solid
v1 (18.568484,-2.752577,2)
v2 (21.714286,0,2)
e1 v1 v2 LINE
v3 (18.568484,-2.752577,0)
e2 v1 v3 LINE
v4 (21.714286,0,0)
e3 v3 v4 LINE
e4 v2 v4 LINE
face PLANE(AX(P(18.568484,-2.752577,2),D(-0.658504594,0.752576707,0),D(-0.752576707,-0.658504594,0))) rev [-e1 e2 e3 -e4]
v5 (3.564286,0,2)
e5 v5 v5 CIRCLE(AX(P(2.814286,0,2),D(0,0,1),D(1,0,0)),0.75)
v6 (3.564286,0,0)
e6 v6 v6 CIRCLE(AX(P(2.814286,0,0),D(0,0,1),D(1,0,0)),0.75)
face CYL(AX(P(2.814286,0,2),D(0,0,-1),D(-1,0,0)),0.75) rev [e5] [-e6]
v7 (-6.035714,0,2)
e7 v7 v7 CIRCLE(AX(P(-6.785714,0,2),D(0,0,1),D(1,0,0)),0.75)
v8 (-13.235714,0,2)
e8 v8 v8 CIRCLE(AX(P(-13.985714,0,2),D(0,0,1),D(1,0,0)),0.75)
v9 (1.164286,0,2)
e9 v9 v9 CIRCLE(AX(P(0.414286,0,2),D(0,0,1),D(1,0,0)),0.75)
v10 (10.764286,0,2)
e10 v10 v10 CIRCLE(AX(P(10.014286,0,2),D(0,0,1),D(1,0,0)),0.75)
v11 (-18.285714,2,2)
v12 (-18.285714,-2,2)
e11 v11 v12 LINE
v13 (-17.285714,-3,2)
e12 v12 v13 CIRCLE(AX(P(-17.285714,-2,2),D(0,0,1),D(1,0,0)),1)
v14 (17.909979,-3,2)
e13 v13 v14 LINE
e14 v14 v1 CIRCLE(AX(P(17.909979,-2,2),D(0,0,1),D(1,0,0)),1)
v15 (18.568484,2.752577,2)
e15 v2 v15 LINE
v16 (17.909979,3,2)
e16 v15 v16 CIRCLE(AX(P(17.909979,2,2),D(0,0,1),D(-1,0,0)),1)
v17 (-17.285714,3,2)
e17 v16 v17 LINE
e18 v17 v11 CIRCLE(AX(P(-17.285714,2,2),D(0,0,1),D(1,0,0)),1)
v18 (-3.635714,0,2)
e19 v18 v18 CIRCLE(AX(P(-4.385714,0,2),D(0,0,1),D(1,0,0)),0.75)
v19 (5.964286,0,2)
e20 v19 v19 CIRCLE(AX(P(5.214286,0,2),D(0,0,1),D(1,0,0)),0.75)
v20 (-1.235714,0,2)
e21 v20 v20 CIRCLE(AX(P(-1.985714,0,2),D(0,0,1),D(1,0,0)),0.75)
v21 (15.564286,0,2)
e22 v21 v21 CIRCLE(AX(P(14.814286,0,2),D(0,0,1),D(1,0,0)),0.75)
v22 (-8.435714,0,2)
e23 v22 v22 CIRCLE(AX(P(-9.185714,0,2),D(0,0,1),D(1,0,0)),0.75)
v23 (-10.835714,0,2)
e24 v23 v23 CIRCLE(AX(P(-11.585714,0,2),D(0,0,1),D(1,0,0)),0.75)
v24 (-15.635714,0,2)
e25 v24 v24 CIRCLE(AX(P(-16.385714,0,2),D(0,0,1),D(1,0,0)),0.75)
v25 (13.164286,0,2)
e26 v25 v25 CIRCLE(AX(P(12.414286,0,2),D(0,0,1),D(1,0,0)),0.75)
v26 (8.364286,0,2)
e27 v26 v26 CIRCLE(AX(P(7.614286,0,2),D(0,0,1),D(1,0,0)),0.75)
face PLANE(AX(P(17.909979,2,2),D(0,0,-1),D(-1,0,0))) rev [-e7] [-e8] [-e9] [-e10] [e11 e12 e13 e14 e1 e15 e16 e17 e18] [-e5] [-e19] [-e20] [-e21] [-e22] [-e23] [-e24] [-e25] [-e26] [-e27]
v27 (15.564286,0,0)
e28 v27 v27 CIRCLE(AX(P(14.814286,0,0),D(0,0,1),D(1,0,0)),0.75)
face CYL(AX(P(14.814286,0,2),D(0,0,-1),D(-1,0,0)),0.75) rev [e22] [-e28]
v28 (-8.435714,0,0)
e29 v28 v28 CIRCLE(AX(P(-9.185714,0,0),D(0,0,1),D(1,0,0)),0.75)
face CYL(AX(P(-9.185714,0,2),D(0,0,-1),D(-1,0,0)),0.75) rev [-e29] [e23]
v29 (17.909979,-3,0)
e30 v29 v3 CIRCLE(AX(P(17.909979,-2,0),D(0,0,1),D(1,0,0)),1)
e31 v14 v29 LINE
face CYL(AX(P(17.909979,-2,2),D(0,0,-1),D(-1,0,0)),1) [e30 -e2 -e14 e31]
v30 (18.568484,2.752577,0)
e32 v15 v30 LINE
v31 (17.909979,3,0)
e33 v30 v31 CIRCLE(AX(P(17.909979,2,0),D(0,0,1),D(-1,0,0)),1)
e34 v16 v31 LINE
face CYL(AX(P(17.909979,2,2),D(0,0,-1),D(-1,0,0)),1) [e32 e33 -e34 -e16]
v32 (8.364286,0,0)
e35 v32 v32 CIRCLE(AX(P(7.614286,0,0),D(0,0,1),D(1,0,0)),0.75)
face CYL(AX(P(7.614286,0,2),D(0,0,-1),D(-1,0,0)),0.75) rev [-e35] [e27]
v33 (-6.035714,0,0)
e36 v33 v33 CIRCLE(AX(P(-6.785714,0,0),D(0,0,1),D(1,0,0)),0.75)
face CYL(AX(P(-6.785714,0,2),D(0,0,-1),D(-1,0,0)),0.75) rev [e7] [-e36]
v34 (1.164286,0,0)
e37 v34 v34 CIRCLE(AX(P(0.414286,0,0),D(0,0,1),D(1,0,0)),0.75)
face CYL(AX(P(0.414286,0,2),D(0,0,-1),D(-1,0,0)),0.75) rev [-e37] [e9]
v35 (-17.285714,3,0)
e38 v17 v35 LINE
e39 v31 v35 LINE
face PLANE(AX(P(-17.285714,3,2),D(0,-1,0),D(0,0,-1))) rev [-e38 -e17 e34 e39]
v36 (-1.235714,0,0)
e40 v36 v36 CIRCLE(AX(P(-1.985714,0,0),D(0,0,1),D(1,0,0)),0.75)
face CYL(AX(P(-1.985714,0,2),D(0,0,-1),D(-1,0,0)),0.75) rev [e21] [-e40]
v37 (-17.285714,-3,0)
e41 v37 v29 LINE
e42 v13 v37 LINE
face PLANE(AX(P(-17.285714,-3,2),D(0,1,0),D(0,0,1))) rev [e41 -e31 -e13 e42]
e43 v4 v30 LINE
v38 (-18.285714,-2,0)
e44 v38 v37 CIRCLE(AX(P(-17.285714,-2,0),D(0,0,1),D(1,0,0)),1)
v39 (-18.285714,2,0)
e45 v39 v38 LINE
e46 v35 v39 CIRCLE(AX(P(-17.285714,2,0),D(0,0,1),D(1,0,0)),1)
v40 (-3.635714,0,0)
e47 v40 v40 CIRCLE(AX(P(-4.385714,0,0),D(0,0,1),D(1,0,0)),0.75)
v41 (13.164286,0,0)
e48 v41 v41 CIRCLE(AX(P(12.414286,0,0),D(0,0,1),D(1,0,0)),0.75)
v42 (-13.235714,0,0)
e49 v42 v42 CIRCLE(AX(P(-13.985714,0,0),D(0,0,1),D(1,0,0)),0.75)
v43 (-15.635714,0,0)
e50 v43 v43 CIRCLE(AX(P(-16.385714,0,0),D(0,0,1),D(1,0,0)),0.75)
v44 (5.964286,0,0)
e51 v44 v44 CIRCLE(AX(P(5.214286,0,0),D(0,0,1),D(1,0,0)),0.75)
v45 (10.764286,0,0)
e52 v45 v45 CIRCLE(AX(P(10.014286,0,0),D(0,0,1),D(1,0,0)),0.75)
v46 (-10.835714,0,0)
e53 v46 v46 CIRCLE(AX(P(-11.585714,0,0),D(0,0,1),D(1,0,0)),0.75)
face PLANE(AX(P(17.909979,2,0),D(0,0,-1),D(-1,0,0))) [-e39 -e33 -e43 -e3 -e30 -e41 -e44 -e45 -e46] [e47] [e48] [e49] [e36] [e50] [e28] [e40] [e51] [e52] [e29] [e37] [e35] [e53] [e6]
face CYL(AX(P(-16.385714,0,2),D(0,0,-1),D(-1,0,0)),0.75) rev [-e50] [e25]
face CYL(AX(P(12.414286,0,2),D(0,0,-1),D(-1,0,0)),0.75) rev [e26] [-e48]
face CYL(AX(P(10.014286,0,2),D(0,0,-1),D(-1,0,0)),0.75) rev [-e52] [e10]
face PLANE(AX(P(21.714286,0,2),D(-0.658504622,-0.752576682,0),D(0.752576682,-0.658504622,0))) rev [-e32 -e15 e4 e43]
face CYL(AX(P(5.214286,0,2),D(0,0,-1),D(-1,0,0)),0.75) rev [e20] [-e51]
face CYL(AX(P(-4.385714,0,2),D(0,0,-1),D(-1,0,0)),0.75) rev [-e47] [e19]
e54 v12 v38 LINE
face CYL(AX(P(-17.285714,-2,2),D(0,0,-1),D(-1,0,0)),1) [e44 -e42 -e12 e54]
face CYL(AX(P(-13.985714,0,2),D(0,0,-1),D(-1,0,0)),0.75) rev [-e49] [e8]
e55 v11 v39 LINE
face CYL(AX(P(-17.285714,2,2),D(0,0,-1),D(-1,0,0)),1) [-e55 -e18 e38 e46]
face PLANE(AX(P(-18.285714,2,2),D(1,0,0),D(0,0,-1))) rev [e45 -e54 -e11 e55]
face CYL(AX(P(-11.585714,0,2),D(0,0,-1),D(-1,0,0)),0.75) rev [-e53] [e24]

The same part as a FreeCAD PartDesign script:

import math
import FreeCAD as App
import Part
import Sketcher
from FreeCAD import Vector

doc = App.newDocument("Part")
body = doc.addObject("PartDesign::Body", "Body")

sketch1 = body.newObject("Sketcher::SketchObject", "Sketch")
sketch1.AttachmentSupport = (doc.getObject("XY_Plane"), [""])
sketch1.MapMode = "FlatFace"
sketch1.addGeometry(Part.LineSegment(Vector(18.568484, -2.752577, 0), Vector(21.714286, 0, 0)), False)
sketch1.addGeometry(Part.LineSegment(Vector(21.714286, 0, 0), Vector(18.568484, 2.752577, 0)), False)
sketch1.addGeometry(Part.ArcOfCircle(Part.Circle(Vector(17.909979, 2, 0), Vector(0, 0, 1), 1), math.radians(48.814074), math.radians(90)), False)
sketch1.addGeometry(Part.LineSegment(Vector(17.909979, 3, 0), Vector(-17.285714, 3, 0)), False)
sketch1.addGeometry(Part.ArcOfCircle(Part.Circle(Vector(-17.285714, 2, 0), Vector(0, 0, 1), 1), math.radians(90), math.radians(180)), False)
sketch1.addGeometry(Part.LineSegment(Vector(-18.285714, 2, 0), Vector(-18.285714, -2, 0)), False)
sketch1.addGeometry(Part.ArcOfCircle(Part.Circle(Vector(-17.285714, -2, 0), Vector(0, 0, 1), 1), math.radians(-180), math.radians(-90)), False)
sketch1.addGeometry(Part.LineSegment(Vector(-17.285714, -3, 0), Vector(17.909979, -3, 0)), False)
sketch1.addGeometry(Part.ArcOfCircle(Part.Circle(Vector(17.909979, -2, 0), Vector(0, 0, 1), 1), math.radians(-90), math.radians(-48.814076)), False)
sketch1.addGeometry(Part.Circle(Vector(-16.385714, 0, 0), Vector(0, 0, 1), 0.75), False)
sketch1.addGeometry(Part.Circle(Vector(-13.985714, 0, 0), Vector(0, 0, 1), 0.75), False)
sketch1.addGeometry(Part.Circle(Vector(-11.585714, 0, 0), Vector(0, 0, 1), 0.75), False)
sketch1.addGeometry(Part.Circle(Vector(-9.185714, 0, 0), Vector(0, 0, 1), 0.75), False)
sketch1.addGeometry(Part.Circle(Vector(-6.785714, 0, 0), Vector(0, 0, 1), 0.75), False)
sketch1.addGeometry(Part.Circle(Vector(-4.385714, 0, 0), Vector(0, 0, 1), 0.75), False)
sketch1.addGeometry(Part.Circle(Vector(-1.985714, 0, 0), Vector(0, 0, 1), 0.75), False)
sketch1.addGeometry(Part.Circle(Vector(0.414286, 0, 0), Vector(0, 0, 1), 0.75), False)
sketch1.addGeometry(Part.Circle(Vector(2.814286, 0, 0), Vector(0, 0, 1), 0.75), False)
sketch1.addGeometry(Part.Circle(Vector(5.214286, 0, 0), Vector(0, 0, 1), 0.75), False)
sketch1.addGeometry(Part.Circle(Vector(7.614286, 0, 0), Vector(0, 0, 1), 0.75), False)
sketch1.addGeometry(Part.Circle(Vector(10.014286, 0, 0), Vector(0, 0, 1), 0.75), False)
sketch1.addGeometry(Part.Circle(Vector(12.414286, 0, 0), Vector(0, 0, 1), 0.75), False)
sketch1.addGeometry(Part.Circle(Vector(14.814286, 0, 0), Vector(0, 0, 1), 0.75), False)
sketch1.addConstraint(Sketcher.Constraint("Coincident", 0, 2, 1, 1))
sketch1.addConstraint(Sketcher.Constraint("Tangent", 1, 2, 2, 1))
sketch1.addConstraint(Sketcher.Constraint("Tangent", 2, 2, 3, 1))
sketch1.addConstraint(Sketcher.Constraint("Tangent", 3, 2, 4, 1))
sketch1.addConstraint(Sketcher.Constraint("Tangent", 4, 2, 5, 1))
sketch1.addConstraint(Sketcher.Constraint("Tangent", 5, 2, 6, 1))
sketch1.addConstraint(Sketcher.Constraint("Tangent", 6, 2, 7, 1))
sketch1.addConstraint(Sketcher.Constraint("Tangent", 7, 2, 8, 1))
sketch1.addConstraint(Sketcher.Constraint("Tangent", 8, 2, 0, 1))
sketch1.addConstraint(Sketcher.Constraint("Horizontal", 3))
sketch1.addConstraint(Sketcher.Constraint("Vertical", 5))
sketch1.addConstraint(Sketcher.Constraint("Horizontal", 7))
sketch1.addConstraint(Sketcher.Constraint("Equal", 2, 4))
sketch1.addConstraint(Sketcher.Constraint("Equal", 4, 6))
sketch1.addConstraint(Sketcher.Constraint("Equal", 6, 8))
sketch1.addConstraint(Sketcher.Constraint("Equal", 9, 10))
sketch1.addConstraint(Sketcher.Constraint("Equal", 10, 11))
sketch1.addConstraint(Sketcher.Constraint("Equal", 11, 12))
sketch1.addConstraint(Sketcher.Constraint("Equal", 12, 13))
sketch1.addConstraint(Sketcher.Constraint("Equal", 13, 14))
sketch1.addConstraint(Sketcher.Constraint("Equal", 14, 15))
sketch1.addConstraint(Sketcher.Constraint("Equal", 15, 16))
sketch1.addConstraint(Sketcher.Constraint("Equal", 16, 17))
sketch1.addConstraint(Sketcher.Constraint("Equal", 17, 18))
sketch1.addConstraint(Sketcher.Constraint("Equal", 18, 19))
sketch1.addConstraint(Sketcher.Constraint("Equal", 19, 20))
sketch1.addConstraint(Sketcher.Constraint("Equal", 20, 21))
sketch1.addConstraint(Sketcher.Constraint("Equal", 21, 22))
sketch1.addConstraint(Sketcher.Constraint("Symmetric", 2, 3, 8, 3, -1))
sketch1.addConstraint(Sketcher.Constraint("PointOnObject", 9, 3, -1))
sketch1.addConstraint(Sketcher.Constraint("PointOnObject", 10, 3, -1))
sketch1.addConstraint(Sketcher.Constraint("PointOnObject", 11, 3, -1))
sketch1.addConstraint(Sketcher.Constraint("PointOnObject", 12, 3, -1))
sketch1.addConstraint(Sketcher.Constraint("PointOnObject", 13, 3, -1))
sketch1.addConstraint(Sketcher.Constraint("PointOnObject", 14, 3, -1))
sketch1.addConstraint(Sketcher.Constraint("PointOnObject", 15, 3, -1))
sketch1.addConstraint(Sketcher.Constraint("PointOnObject", 16, 3, -1))
sketch1.addConstraint(Sketcher.Constraint("PointOnObject", 17, 3, -1))
sketch1.addConstraint(Sketcher.Constraint("PointOnObject", 18, 3, -1))
sketch1.addConstraint(Sketcher.Constraint("PointOnObject", 19, 3, -1))
sketch1.addConstraint(Sketcher.Constraint("PointOnObject", 20, 3, -1))
sketch1.addConstraint(Sketcher.Constraint("PointOnObject", 21, 3, -1))
sketch1.addConstraint(Sketcher.Constraint("PointOnObject", 22, 3, -1))
sketch1.addConstraint(Sketcher.Constraint("PointOnObject", 0, 2, -1))
sketch1.addConstraint(Sketcher.Constraint("Radius", 2, 1.0))
sketch1.addConstraint(Sketcher.Constraint("Diameter", 9, 1.5))
sketch1.addConstraint(Sketcher.Constraint("DistanceY", 5, 2, 5, 1, 4.0))
sketch1.addConstraint(Sketcher.Constraint("DistanceX", 9, 3, 14, 3, 12.0))
sketch1.addConstraint(Sketcher.Constraint("DistanceX", 10, 3, 15, 3, 12.0))
sketch1.addConstraint(Sketcher.Constraint("DistanceX", 11, 3, 16, 3, 12.0))
sketch1.addConstraint(Sketcher.Constraint("DistanceX", 12, 3, 17, 3, 12.0))
sketch1.addConstraint(Sketcher.Constraint("DistanceX", 13, 3, 18, 3, 12.0))
sketch1.addConstraint(Sketcher.Constraint("DistanceX", 4, 3, 9, 3, 0.9))
sketch1.addConstraint(Sketcher.Constraint("DistanceX", 9, 3, 10, 3, 2.4))
sketch1.addConstraint(Sketcher.Constraint("DistanceX", 10, 3, 11, 3, 2.4))
sketch1.addConstraint(Sketcher.Constraint("DistanceX", 11, 3, 12, 3, 2.4))
sketch1.addConstraint(Sketcher.Constraint("DistanceX", 12, 3, 13, 3, 2.4))
sketch1.addConstraint(Sketcher.Constraint("DistanceX", 18, 3, 19, 3, 2.4))
sketch1.addConstraint(Sketcher.Constraint("DistanceX", 19, 3, 20, 3, 2.4))
sketch1.addConstraint(Sketcher.Constraint("DistanceX", 20, 3, 21, 3, 2.4))
sketch1.addConstraint(Sketcher.Constraint("DistanceX", 21, 3, 22, 3, 2.4))
sketch1.addConstraint(Sketcher.Constraint("DistanceX", 22, 3, 0, 2, 6.9))
sketch1.addConstraint(Sketcher.Constraint("DistanceX", 1, 2, 0, 2, 3.145802))
sketch1.addConstraint(Sketcher.Constraint("DistanceX", -1, 1, 2, 3, 17.909979))
pad1 = body.newObject("PartDesign::Pad", "Pad")
pad1.Profile = sketch1
pad1.Length = 2

doc.recompute()
